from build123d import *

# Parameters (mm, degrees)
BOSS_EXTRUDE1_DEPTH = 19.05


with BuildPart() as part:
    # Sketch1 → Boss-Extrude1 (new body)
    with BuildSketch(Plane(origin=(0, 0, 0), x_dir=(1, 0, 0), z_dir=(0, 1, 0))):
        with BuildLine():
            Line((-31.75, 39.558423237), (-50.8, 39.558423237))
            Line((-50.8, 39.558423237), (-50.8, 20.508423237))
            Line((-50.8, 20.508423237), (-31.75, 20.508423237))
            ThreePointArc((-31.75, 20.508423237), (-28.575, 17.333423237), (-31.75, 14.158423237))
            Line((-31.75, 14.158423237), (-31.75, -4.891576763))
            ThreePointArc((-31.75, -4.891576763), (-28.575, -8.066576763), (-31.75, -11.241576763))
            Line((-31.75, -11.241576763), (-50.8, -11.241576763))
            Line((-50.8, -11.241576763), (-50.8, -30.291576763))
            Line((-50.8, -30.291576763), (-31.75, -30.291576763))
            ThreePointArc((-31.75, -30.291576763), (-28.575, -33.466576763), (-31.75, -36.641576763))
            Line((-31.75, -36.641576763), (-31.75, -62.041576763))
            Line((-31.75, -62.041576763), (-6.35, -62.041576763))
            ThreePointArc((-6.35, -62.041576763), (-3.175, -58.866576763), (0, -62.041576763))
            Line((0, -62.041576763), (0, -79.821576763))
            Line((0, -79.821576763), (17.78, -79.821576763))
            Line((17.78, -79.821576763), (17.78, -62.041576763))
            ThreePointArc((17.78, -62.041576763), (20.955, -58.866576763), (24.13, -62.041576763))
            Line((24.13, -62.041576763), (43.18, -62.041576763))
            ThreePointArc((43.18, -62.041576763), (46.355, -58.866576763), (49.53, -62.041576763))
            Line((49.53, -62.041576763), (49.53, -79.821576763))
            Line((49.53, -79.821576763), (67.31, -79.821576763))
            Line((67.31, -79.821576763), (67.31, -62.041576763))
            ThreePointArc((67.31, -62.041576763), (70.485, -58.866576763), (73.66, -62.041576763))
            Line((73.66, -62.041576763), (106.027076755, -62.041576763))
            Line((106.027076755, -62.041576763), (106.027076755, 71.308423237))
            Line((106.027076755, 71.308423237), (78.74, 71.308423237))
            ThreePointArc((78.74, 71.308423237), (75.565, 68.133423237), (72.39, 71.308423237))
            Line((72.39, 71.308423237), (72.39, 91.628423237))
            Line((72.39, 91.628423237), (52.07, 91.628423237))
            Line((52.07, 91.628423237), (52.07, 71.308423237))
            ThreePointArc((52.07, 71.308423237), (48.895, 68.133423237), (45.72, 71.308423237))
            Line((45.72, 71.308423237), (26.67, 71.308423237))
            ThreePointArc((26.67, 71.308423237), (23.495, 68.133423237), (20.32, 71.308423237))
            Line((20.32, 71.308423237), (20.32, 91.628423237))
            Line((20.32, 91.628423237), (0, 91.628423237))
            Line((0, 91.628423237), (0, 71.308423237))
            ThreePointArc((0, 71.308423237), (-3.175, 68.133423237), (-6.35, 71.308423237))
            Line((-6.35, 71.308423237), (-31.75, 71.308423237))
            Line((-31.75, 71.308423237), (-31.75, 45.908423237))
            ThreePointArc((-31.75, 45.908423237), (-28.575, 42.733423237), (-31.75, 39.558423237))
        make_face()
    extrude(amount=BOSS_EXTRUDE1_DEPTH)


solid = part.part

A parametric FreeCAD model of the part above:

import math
import FreeCAD as App
import Part
import Sketcher
from FreeCAD import Vector
Q = App.Units.Quantity

doc = App.newDocument("Part")
body = doc.addObject("PartDesign::Body", "Body")

# Sketch on XZ plane
sketch1 = body.newObject("Sketcher::SketchObject", "Sketch")
sketch1.AttachmentSupport = (doc.getObject("XZ_Plane"), [""])
sketch1.MapMode = "FlatFace"
sketch1.addGeometry(Part.LineSegment(Vector(-31.8, -39.6, 0), Vector(-50.8, -39.6, 0)), False)
sketch1.addGeometry(Part.LineSegment(Vector(-50.8, -39.6, 0), Vector(-50.8, -20.5, 0)), False)
sketch1.addGeometry(Part.LineSegment(Vector(-50.8, -20.5, 0), Vector(-31.8, -20.5, 0)), False)
sketch1.addGeometry(Part.ArcOfCircle(Part.Circle(Vector(-31.8, -17.3, 0), Vector(0, 0, 1), 3.2), math.radians(-90), math.radians(90)), False)
sketch1.addGeometry(Part.LineSegment(Vector(-31.8, -14.2, 0), Vector(-31.8, 4.9, 0)), False)
sketch1.addGeometry(Part.ArcOfCircle(Part.Circle(Vector(-31.8, 8.1, 0), Vector(0, 0, 1), 3.2), math.radians(-90), math.radians(90)), False)
sketch1.addGeometry(Part.LineSegment(Vector(-31.8, 11.2, 0), Vector(-50.8, 11.2, 0)), False)
sketch1.addGeometry(Part.LineSegment(Vector(-50.8, 11.2, 0), Vector(-50.8, 30.3, 0)), False)
sketch1.addGeometry(Part.LineSegment(Vector(-50.8, 30.3, 0), Vector(-31.8, 30.3, 0)), False)
sketch1.addGeometry(Part.ArcOfCircle(Part.Circle(Vector(-31.8, 33.5, 0), Vector(0, 0, 1), 3.2), math.radians(-90), math.radians(90)), False)
sketch1.addGeometry(Part.LineSegment(Vector(-31.8, 36.6, 0), Vector(-31.8, 62, 0)), False)
sketch1.addGeometry(Part.LineSegment(Vector(-31.8, 62, 0), Vector(-6.3, 62, 0)), False)
sketch1.addGeometry(Part.ArcOfCircle(Part.Circle(Vector(-3.2, 62, 0), Vector(0, 0, 1), 3.2), math.radians(180), math.radians(360)), False)
sketch1.addGeometry(Part.LineSegment(Vector(0, 62, 0), Vector(0, 79.8, 0)), False)
sketch1.addGeometry(Part.LineSegment(Vector(0, 79.8, 0), Vector(17.8, 79.8, 0)), False)
sketch1.addGeometry(Part.LineSegment(Vector(17.8, 79.8, 0), Vector(17.8, 62, 0)), False)
sketch1.addGeometry(Part.ArcOfCircle(Part.Circle(Vector(21, 62, 0), Vector(0, 0, 1), 3.2), math.radians(180), math.radians(360)), False)
sketch1.addGeometry(Part.LineSegment(Vector(24.1, 62, 0), Vector(43.2, 62, 0)), False)
sketch1.addGeometry(Part.ArcOfCircle(Part.Circle(Vector(46.4, 62, 0), Vector(0, 0, 1), 3.2), math.radians(180), math.radians(360)), False)
sketch1.addGeometry(Part.LineSegment(Vector(49.5, 62, 0), Vector(49.5, 79.8, 0)), False)
sketch1.addGeometry(Part.LineSegment(Vector(49.5, 79.8, 0), Vector(67.3, 79.8, 0)), False)
sketch1.addGeometry(Part.LineSegment(Vector(67.3, 79.8, 0), Vector(67.3, 62, 0)), False)
sketch1.addGeometry(Part.ArcOfCircle(Part.Circle(Vector(70.5, 62, 0), Vector(0, 0, 1), 3.2), math.radians(180), math.radians(360)), False)
sketch1.addGeometry(Part.LineSegment(Vector(73.7, 62, 0), Vector(106, 62, 0)), False)
sketch1.addGeometry(Part.LineSegment(Vector(106, 62, 0), Vector(106, -71.3, 0)), False)
sketch1.addGeometry(Part.LineSegment(Vector(106, -71.3, 0), Vector(78.7, -71.3, 0)), False)
sketch1.addGeometry(Part.ArcOfCircle(Part.Circle(Vector(75.6, -71.3, 0), Vector(0, 0, 1), 3.2), math.radians(0), math.radians(180)), False)
sketch1.addGeometry(Part.LineSegment(Vector(72.4, -71.3, 0), Vector(72.4, -91.6, 0)), False)
sketch1.addGeometry(Part.LineSegment(Vector(72.4, -91.6, 0), Vector(52.1, -91.6, 0)), False)
sketch1.addGeometry(Part.LineSegment(Vector(52.1, -91.6, 0), Vector(52.1, -71.3, 0)), False)
sketch1.addGeometry(Part.ArcOfCircle(Part.Circle(Vector(48.9, -71.3, 0), Vector(0, 0, 1), 3.2), math.radians(0), math.radians(180)), False)
sketch1.addGeometry(Part.LineSegment(Vector(45.7, -71.3, 0), Vector(26.7, -71.3, 0)), False)
sketch1.addGeometry(Part.ArcOfCircle(Part.Circle(Vector(23.5, -71.3, 0), Vector(0, 0, 1), 3.2), math.radians(0), math.radians(180)), False)
sketch1.addGeometry(Part.LineSegment(Vector(20.3, -71.3, 0), Vector(20.3, -91.6, 0)), False)
sketch1.addGeometry(Part.LineSegment(Vector(20.3, -91.6, 0), Vector(0, -91.6, 0)), False)
sketch1.addGeometry(Part.LineSegment(Vector(0, -91.6, 0), Vector(0, -71.3, 0)), False)
sketch1.addGeometry(Part.ArcOfCircle(Part.Circle(Vector(-3.2, -71.3, 0), Vector(0, 0, 1), 3.2), math.radians(0), math.radians(180)), False)
sketch1.addGeometry(Part.LineSegment(Vector(-6.3, -71.3, 0), Vector(-31.8, -71.3, 0)), False)
sketch1.addGeometry(Part.LineSegment(Vector(-31.8, -71.3, 0), Vector(-31.8, -45.9, 0)), False)
sketch1.addGeometry(Part.ArcOfCircle(Part.Circle(Vector(-31.8, -42.7, 0), Vector(0, 0, 1), 3.2), math.radians(-90), math.radians(90)), False)
sketch1.addConstraint(Sketcher.Constraint("Coincident", 0, 2, 1, 1))
sketch1.addConstraint(Sketcher.Constraint("Coincident", 1, 2, 2, 1))
sketch1.addConstraint(Sketcher.Constraint("Tangent", 2, 2, 3, 1))
sketch1.addConstraint(Sketcher.Constraint("Coincident", 3, 2, 4, 1))
sketch1.addConstraint(Sketcher.Constraint("Coincident", 4, 2, 5, 1))
sketch1.addConstraint(Sketcher.Constraint("Tangent", 5, 2, 6, 1))
sketch1.addConstraint(Sketcher.Constraint("Coincident", 6, 2, 7, 1))
sketch1.addConstraint(Sketcher.Constraint("Coincident", 7, 2, 8, 1))
sketch1.addConstraint(Sketcher.Constraint("Tangent", 8, 2, 9, 1))
sketch1.addConstraint(Sketcher.Constraint("Coincident", 9, 2, 10, 1))
sketch1.addConstraint(Sketcher.Constraint("Coincident", 10, 2, 11, 1))
sketch1.addConstraint(Sketcher.Constraint("Coincident", 11, 2, 12, 1))
sketch1.addConstraint(Sketcher.Constraint("Tangent", 12, 2, 13, 1))
sketch1.addConstraint(Sketcher.Constraint("Coincident", 13, 2, 14, 1))
sketch1.addConstraint(Sketcher.Constraint("Coincident", 14, 2, 15, 1))
sketch1.addConstraint(Sketcher.Constraint("Tangent", 15, 2, 16, 1))
sketch1.addConstraint(Sketcher.Constraint("Coincident", 16, 2, 17, 1))
sketch1.addConstraint(Sketcher.Constraint("Coincident", 17, 2, 18, 1))
sketch1.addConstraint(Sketcher.Constraint("Tangent", 18, 2, 19, 1))
sketch1.addConstraint(Sketcher.Constraint("Coincident", 19, 2, 20, 1))
sketch1.addConstraint(Sketcher.Constraint("Coincident", 20, 2, 21, 1))
sketch1.addConstraint(Sketcher.Constraint("Tangent", 21, 2, 22, 1))
sketch1.addConstraint(Sketcher.Constraint("Coincident", 22, 2, 23, 1))
sketch1.addConstraint(Sketcher.Constraint("Coincident", 23, 2, 24, 1))
sketch1.addConstraint(Sketcher.Constraint("Coincident", 24, 2, 25, 1))
sketch1.addConstraint(Sketcher.Constraint("Coincident", 25, 2, 26, 1))
sketch1.addConstraint(Sketcher.Constraint("Tangent", 26, 2, 27, 1))
sketch1.addConstraint(Sketcher.Constraint("Coincident", 27, 2, 28, 1))
sketch1.addConstraint(Sketcher.Constraint("Coincident", 28, 2, 29, 1))
sketch1.addConstraint(Sketcher.Constraint("Tangent", 29, 2, 30, 1))
sketch1.addConstraint(Sketcher.Constraint("Coincident", 30, 2, 31, 1))
sketch1.addConstraint(Sketcher.Constraint("Coincident", 31, 2, 32, 1))
sketch1.addConstraint(Sketcher.Constraint("Tangent", 32, 2, 33, 1))
sketch1.addConstraint(Sketcher.Constraint("Coincident", 33, 2, 34, 1))
sketch1.addConstraint(Sketcher.Constraint("Coincident", 34, 2, 35, 1))
sketch1.addConstraint(Sketcher.Constraint("Tangent", 35, 2, 36, 1))
sketch1.addConstraint(Sketcher.Constraint("Coincident", 36, 2, 37, 1))
sketch1.addConstraint(Sketcher.Constraint("Coincident", 37, 2, 38, 1))
sketch1.addConstraint(Sketcher.Constraint("Coincident", 38, 2, 39, 1))
sketch1.addConstraint(Sketcher.Constraint("Tangent", 39, 2, 0, 1))
sketch1.addConstraint(Sketcher.Constraint("Horizontal", 0))
sketch1.addConstraint(Sketcher.Constraint("Vertical", 1))
sketch1.addConstraint(Sketcher.Constraint("Horizontal", 2))
sketch1.addConstraint(Sketcher.Constraint("Vertical", 4))
sketch1.addConstraint(Sketcher.Constraint("Horizontal", 6))
sketch1.addConstraint(Sketcher.Constraint("Vertical", 7))
sketch1.addConstraint(Sketcher.Constraint("Horizontal", 8))
sketch1.addConstraint(Sketcher.Constraint("Vertical", 10))
sketch1.addConstraint(Sketcher.Constraint("Horizontal", 11))
sketch1.addConstraint(Sketcher.Constraint("Vertical", 13))
sketch1.addConstraint(Sketcher.Constraint("Horizontal", 14))
sketch1.addConstraint(Sketcher.Constraint("Vertical", 15))
sketch1.addConstraint(Sketcher.Constraint("Horizontal", 17))
sketch1.addConstraint(Sketcher.Constraint("Vertical", 19))
sketch1.addConstraint(Sketcher.Constraint("Horizontal", 20))
sketch1.addConstraint(Sketcher.Constraint("Vertical", 21))
sketch1.addConstraint(Sketcher.Constraint("Horizontal", 23))
sketch1.addConstraint(Sketcher.Constraint("Vertical", 24))
sketch1.addConstraint(Sketcher.Constraint("Horizontal", 25))
sketch1.addConstraint(Sketcher.Constraint("Vertical", 27))
sketch1.addConstraint(Sketcher.Constraint("Horizontal", 28))
sketch1.addConstraint(Sketcher.Constraint("Vertical", 29))
sketch1.addConstraint(Sketcher.Constraint("Horizontal", 31))
sketch1.addConstraint(Sketcher.Constraint("Vertical", 33))
sketch1.addConstraint(Sketcher.Constraint("Horizontal", 34))
sketch1.addConstraint(Sketcher.Constraint("Vertical", 35))
sketch1.addConstraint(Sketcher.Constraint("Horizontal", 37))
sketch1.addConstraint(Sketcher.Constraint("Vertical", 38))
sketch1.addConstraint(Sketcher.Constraint("Equal", 3, 5))
sketch1.addConstraint(Sketcher.Constraint("Equal", 5, 9))
sketch1.addConstraint(Sketcher.Constraint("Equal", 9, 12))
sketch1.addConstraint(Sketcher.Constraint("Equal", 12, 16))
sketch1.addConstraint(Sketcher.Constraint("Equal", 16, 18))
sketch1.addConstraint(Sketcher.Constraint("Equal", 18, 22))
sketch1.addConstraint(Sketcher.Constraint("Equal", 22, 26))
sketch1.addConstraint(Sketcher.Constraint("Equal", 26, 30))
sketch1.addConstraint(Sketcher.Constraint("Equal", 30, 32))
sketch1.addConstraint(Sketcher.Constraint("Equal", 32, 36))
sketch1.addConstraint(Sketcher.Constraint("Equal", 36, 39))
sketch1.addConstraint(Sketcher.Constraint("PointOnObject", 12, 2, -2))
sketch1.addConstraint(Sketcher.Constraint("PointOnObject", 34, 2, -2))
sketch1.addConstraint(Sketcher.Constraint("Horizontal", 12, 3, 16, 3))
sketch1.addConstraint(Sketcher.Constraint("Horizontal", 16, 3, 18, 3))
sketch1.addConstraint(Sketcher.Constraint("Horizontal", 18, 3, 22, 3))
sketch1.addConstraint(Sketcher.Constraint("Horizontal", 26, 3, 30, 3))
sketch1.addConstraint(Sketcher.Constraint("Horizontal", 30, 3, 32, 3))
sketch1.addConstraint(Sketcher.Constraint("Horizontal", 32, 3, 36, 3))
sketch1.addConstraint(Sketcher.Constraint("Horizontal", 22, 3, 10, 2))
sketch1.addConstraint(Sketcher.Constraint("Horizontal", 15, 2, 16, 2))
sketch1.addConstraint(Sketcher.Constraint("Horizontal", 14, 2, 19, 2))
sketch1.addConstraint(Sketcher.Constraint("Horizontal", 21, 2, 22, 2))
sketch1.addConstraint(Sketcher.Constraint("Horizontal", 36, 3, 24, 2))
sketch1.addConstraint(Sketcher.Constraint("Horizontal", 29, 2, 30, 2))
sketch1.addConstraint(Sketcher.Constraint("Horizontal", 28, 2, 33, 2))
sketch1.addConstraint(Sketcher.Constraint("Horizontal", 35, 2, 36, 2))
sketch1.addConstraint(Sketcher.Constraint("Vertical", 3, 3, 5, 3))
sketch1.addConstraint(Sketcher.Constraint("Vertical", 5, 3, 9, 3))
sketch1.addConstraint(Sketcher.Constraint("Vertical", 9, 3, 39, 3))
sketch1.addConstraint(Sketcher.Constraint("Vertical", 2, 2, 3, 2))
sketch1.addConstraint(Sketcher.Constraint("Vertical", 1, 2, 6, 2))
sketch1.addConstraint(Sketcher.Constraint("Vertical", 8, 2, 9, 2))
sketch1.addConstraint(Sketcher.Constraint("Vertical", 10, 2, 37, 2))
sketch1.addConstraint(Sketcher.Constraint("Equal", 8, 17))
sketch1.addConstraint(Sketcher.Constraint("Equal", 14, 20))
sketch1.addConstraint(Sketcher.Constraint("Equal", 17, 31))
sketch1.addConstraint(Sketcher.Constraint("Equal", 28, 34))
sketch1.addConstraint(Sketcher.Constraint("Equal", 31, 1))
sketch1.addConstraint(Sketcher.Constraint("Equal", 1, 4))
sketch1.addConstraint(Sketcher.Constraint("Equal", 4, 7))
sketch1.addConstraint(Sketcher.Constraint("Equal", 37, 10))
sketch1.addConstraint(Sketcher.Constraint("Equal", 20, 13))
sketch1.addConstraint(Sketcher.Constraint("Equal", 34, 27))
sketch1.addConstraint(Sketcher.Constraint("Equal", 10, 38))
sketch1.addConstraint(Sketcher.Constraint("DistanceX", 11, 1, 11, 2, Q("1 in")))
sketch1.addConstraint(Sketcher.Constraint("DistanceX", 14, 1, 14, 2, Q("0.7 in")))
sketch1.addConstraint(Sketcher.Constraint("DistanceX", 28, 2, 28, 1, Q("0.8 in")))
sketch1.addConstraint(Sketcher.Constraint("DistanceX", 0, 2, -1, 1, Q("2 in")))
sketch1.addConstraint(Sketcher.Constraint("Radius", 3, Q("0.125 in")))
sketch1.addConstraint(Sketcher.Constraint("DistanceX", 23, 1, 23, 2, 32.367077))
sketch1.addConstraint(Sketcher.Constraint("DistanceY", 3, 3, -1, 1, 17.333423))
pad1 = body.newObject("PartDesign::Pad", "Pad")
pad1.Profile = sketch1
pad1.Length = Q("0.75 in")
pad1.Reversed = True

doc.recompute()
